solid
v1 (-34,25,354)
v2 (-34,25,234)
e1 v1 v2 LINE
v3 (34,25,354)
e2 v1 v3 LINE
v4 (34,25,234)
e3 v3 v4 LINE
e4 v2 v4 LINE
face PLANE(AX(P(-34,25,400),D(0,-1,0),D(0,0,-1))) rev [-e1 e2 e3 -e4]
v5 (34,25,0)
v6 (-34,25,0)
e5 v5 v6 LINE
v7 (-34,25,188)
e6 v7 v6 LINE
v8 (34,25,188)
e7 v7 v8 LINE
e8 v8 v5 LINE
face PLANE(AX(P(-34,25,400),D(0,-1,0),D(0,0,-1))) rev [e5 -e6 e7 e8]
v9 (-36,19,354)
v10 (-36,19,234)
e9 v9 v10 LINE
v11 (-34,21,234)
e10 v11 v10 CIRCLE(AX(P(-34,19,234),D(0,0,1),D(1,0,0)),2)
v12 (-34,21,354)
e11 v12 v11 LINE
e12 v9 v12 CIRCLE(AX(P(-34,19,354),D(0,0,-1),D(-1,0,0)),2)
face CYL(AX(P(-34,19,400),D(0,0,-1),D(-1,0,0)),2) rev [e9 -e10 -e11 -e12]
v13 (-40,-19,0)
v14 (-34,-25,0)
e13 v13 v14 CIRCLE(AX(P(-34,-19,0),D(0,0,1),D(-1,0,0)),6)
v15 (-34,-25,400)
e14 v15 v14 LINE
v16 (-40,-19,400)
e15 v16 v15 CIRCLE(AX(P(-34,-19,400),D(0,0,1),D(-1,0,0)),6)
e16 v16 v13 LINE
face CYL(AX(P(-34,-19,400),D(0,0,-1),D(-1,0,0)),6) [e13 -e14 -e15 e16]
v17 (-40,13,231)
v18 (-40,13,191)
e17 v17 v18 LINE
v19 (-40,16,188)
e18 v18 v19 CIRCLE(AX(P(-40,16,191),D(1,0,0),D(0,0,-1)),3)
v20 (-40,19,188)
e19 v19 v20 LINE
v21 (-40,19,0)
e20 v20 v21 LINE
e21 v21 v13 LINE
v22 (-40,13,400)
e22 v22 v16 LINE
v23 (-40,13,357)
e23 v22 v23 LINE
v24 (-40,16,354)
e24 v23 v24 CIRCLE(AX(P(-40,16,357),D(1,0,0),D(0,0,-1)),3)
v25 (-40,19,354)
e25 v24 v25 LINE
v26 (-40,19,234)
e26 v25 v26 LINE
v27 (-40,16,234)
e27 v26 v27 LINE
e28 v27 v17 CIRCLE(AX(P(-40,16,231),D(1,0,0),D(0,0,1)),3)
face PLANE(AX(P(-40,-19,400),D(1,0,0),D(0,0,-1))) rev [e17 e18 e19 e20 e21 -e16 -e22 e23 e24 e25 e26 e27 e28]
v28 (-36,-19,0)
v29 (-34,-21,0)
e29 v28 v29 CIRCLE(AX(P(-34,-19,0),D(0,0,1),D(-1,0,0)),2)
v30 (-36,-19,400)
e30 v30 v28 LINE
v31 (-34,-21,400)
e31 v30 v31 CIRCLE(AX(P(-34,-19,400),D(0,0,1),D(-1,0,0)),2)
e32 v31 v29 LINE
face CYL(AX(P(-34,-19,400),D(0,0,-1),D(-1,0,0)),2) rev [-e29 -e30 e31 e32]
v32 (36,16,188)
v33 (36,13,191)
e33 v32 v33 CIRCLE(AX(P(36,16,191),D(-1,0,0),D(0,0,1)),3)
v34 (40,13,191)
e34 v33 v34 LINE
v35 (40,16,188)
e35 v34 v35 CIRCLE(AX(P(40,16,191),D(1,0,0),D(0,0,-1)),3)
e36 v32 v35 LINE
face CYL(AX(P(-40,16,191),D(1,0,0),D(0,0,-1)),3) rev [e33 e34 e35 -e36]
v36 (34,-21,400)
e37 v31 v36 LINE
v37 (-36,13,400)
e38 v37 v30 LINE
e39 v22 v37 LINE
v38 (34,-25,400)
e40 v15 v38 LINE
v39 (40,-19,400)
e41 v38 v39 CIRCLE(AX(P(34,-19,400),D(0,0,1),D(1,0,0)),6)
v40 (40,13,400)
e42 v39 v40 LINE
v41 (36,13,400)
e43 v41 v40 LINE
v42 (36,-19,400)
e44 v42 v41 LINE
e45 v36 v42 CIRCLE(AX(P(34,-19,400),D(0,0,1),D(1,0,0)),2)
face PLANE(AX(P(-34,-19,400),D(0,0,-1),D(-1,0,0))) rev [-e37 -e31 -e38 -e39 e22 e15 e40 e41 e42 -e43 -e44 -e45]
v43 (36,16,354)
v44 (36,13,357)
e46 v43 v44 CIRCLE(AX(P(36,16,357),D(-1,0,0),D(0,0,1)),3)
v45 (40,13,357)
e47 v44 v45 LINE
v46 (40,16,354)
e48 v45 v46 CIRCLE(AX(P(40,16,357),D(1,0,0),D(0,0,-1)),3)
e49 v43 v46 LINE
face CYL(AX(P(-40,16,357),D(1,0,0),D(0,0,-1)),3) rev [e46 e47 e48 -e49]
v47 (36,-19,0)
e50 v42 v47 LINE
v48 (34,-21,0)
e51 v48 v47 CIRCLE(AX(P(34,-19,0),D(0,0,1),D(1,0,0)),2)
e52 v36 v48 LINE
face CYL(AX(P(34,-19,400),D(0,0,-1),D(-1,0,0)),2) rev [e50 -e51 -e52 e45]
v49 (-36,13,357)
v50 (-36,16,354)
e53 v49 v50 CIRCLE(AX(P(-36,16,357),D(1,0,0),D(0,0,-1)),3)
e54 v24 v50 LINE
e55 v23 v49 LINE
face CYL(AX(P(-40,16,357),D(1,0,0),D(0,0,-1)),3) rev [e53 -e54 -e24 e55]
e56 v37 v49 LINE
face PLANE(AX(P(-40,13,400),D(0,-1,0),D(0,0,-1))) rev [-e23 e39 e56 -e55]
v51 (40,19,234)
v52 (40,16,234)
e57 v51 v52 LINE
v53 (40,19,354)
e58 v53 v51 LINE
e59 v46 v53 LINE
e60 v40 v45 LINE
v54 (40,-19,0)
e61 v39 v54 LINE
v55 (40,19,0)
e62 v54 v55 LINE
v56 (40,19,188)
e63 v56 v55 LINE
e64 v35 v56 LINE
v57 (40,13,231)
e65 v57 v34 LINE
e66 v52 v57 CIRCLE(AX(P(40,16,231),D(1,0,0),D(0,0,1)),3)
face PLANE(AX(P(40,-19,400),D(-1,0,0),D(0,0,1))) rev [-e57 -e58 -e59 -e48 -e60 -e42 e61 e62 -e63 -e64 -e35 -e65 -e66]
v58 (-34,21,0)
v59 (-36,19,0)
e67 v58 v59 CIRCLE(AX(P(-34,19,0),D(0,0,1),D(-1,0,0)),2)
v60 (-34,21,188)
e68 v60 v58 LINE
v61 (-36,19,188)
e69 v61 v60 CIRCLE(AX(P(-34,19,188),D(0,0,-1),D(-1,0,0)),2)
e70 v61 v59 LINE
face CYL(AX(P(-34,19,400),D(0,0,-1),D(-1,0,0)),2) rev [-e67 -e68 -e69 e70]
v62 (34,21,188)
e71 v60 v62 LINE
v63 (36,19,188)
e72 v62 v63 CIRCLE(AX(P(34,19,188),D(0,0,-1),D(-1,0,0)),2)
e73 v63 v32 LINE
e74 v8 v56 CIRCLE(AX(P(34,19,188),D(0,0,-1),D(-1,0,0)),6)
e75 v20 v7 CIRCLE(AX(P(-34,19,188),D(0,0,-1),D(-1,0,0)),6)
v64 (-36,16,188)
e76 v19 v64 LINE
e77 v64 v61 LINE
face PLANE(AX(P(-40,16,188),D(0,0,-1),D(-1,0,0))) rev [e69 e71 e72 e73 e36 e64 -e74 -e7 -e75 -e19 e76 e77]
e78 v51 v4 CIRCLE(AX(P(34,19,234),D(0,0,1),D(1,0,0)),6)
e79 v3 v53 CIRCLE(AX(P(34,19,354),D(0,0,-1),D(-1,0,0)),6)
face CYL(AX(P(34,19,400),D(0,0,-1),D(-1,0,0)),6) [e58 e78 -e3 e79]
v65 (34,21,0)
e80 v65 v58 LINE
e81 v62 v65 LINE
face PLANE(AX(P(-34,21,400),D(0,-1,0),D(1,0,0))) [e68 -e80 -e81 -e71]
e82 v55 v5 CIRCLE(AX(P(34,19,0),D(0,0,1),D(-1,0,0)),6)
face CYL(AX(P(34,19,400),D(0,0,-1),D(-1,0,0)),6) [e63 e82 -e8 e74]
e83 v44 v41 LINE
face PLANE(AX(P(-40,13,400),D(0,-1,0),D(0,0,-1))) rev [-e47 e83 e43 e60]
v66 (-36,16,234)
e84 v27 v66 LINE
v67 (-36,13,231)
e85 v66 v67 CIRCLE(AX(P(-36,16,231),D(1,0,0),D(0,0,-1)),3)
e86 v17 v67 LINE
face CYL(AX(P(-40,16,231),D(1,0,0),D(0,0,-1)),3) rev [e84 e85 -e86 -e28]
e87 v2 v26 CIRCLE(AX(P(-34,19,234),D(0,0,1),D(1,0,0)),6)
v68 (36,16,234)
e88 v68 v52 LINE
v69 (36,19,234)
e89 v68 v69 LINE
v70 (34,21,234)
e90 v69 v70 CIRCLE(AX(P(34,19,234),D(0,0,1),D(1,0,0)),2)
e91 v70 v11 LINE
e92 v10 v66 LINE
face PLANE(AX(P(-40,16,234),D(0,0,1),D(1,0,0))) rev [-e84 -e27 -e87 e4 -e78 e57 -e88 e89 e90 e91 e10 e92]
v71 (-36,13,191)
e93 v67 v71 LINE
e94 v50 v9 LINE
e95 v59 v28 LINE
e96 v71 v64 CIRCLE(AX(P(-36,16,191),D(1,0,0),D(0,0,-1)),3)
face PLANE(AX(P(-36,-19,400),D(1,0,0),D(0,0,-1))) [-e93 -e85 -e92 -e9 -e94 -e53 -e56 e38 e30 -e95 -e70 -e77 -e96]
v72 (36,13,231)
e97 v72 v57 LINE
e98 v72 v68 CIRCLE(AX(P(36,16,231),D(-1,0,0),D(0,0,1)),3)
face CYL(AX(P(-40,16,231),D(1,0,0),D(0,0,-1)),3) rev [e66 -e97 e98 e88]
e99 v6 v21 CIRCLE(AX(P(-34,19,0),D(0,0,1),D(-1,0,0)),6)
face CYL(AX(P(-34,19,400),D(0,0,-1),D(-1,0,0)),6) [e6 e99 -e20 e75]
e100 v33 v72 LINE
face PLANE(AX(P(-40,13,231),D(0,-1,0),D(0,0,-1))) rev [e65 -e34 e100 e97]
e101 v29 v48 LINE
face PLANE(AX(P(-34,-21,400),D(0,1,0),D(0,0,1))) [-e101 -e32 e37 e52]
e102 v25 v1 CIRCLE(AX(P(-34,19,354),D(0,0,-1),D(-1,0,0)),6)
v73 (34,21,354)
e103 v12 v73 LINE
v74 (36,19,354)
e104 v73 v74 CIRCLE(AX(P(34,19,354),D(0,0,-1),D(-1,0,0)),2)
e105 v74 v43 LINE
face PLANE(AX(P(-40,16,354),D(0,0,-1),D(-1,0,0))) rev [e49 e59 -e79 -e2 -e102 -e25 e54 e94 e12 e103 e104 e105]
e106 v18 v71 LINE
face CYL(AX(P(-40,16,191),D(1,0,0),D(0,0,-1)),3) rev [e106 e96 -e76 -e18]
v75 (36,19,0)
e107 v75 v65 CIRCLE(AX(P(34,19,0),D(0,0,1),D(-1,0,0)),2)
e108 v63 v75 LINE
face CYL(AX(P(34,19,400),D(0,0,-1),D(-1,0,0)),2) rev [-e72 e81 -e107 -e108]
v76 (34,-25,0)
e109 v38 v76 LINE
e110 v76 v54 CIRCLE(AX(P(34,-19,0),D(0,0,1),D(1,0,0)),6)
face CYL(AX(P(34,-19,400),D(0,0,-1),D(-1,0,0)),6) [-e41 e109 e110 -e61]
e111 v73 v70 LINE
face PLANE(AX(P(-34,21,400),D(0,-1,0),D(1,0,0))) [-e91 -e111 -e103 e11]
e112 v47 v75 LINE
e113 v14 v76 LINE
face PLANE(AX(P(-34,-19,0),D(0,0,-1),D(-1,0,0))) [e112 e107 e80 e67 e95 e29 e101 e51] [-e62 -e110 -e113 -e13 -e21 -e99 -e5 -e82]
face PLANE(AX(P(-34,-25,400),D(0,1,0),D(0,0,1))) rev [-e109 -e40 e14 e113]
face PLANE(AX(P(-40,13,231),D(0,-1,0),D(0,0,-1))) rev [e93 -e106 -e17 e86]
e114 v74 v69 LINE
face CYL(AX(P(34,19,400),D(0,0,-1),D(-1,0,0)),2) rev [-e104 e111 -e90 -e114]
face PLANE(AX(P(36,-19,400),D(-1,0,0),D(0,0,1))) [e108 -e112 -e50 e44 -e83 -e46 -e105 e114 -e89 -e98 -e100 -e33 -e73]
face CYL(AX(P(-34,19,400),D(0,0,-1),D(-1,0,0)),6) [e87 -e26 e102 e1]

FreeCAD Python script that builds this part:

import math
import FreeCAD as App
import Part
import Sketcher

V = App.Vector

doc = App.newDocument("Part")
body = doc.addObject("PartDesign::Body", "Body")

# Sketch on XY plane
sketch1 = body.newObject("Sketcher::SketchObject", "Sketch")
sketch1.AttachmentSupport = (doc.getObject("XY_Plane"), [""])
sketch1.MapMode = "FlatFace"
sketch1.addGeometry([
    Part.LineSegment(V(-34, -25, 0), V(34, -25, 0)),  # 0
    Part.ArcOfCircle(Part.Circle(V(34, -19, 0), V(0, 0, 1), 6), math.radians(-90), math.radians(0)),  # 1
    Part.LineSegment(V(40, -19, 0), V(40, 19, 0)),  # 2
    Part.ArcOfCircle(Part.Circle(V(34, 19, 0), V(0, 0, 1), 6), math.radians(0), math.radians(90)),  # 3
    Part.LineSegment(V(34, 25, 0), V(-34, 25, 0)),  # 4
    Part.ArcOfCircle(Part.Circle(V(-34, 19, 0), V(0, 0, 1), 6), math.radians(90), math.radians(180)),  # 5
    Part.LineSegment(V(-40, 19, 0), V(-40, -19, 0)),  # 6
    Part.ArcOfCircle(Part.Circle(V(-34, -19, 0), V(0, 0, 1), 6), math.radians(180), math.radians(270)),  # 7
    Part.LineSegment(V(34, -21, 0), V(-34, -21, 0)),  # 8
    Part.ArcOfCircle(Part.Circle(V(-34, -19, 0), V(0, 0, 1), 2), math.radians(-180), math.radians(-90)),  # 9
    Part.LineSegment(V(-36, -19, 0), V(-36, 19, 0)),  # 10
    Part.ArcOfCircle(Part.Circle(V(-34, 19, 0), V(0, 0, 1), 2), math.radians(90), math.radians(180)),  # 11
    Part.LineSegment(V(-34, 21, 0), V(34, 21, 0)),  # 12
    Part.ArcOfCircle(Part.Circle(V(34, 19, 0), V(0, 0, 1), 2), math.radians(0), math.radians(90)),  # 13
    Part.LineSegment(V(36, 19, 0), V(36, -19, 0)),  # 14
    Part.ArcOfCircle(Part.Circle(V(34, -19, 0), V(0, 0, 1), 2), math.radians(-90), math.radians(0)),  # 15
], False)
sketch1.addConstraint([
    Sketcher.Constraint("Tangent", 0, 2, 1, 1),
    Sketcher.Constraint("Tangent", 1, 2, 2, 1),
    Sketcher.Constraint("Tangent", 2, 2, 3, 1),
    Sketcher.Constraint("Tangent", 3, 2, 4, 1),
    Sketcher.Constraint("Tangent", 4, 2, 5, 1),
    Sketcher.Constraint("Tangent", 5, 2, 6, 1),
    Sketcher.Constraint("Tangent", 6, 2, 7, 1),
    Sketcher.Constraint("Tangent", 7, 2, 0, 1),
    Sketcher.Constraint("Tangent", 8, 2, 9, 2),
    Sketcher.Constraint("Tangent", 9, 1, 10, 1),
    Sketcher.Constraint("Tangent", 10, 2, 11, 2),
    Sketcher.Constraint("Tangent", 11, 1, 12, 1),
    Sketcher.Constraint("Tangent", 12, 2, 13, 2),
    Sketcher.Constraint("Tangent", 13, 1, 14, 1),
    Sketcher.Constraint("Tangent", 14, 2, 15, 2),
    Sketcher.Constraint("Tangent", 15, 1, 8, 1),
    Sketcher.Constraint("Horizontal", 0),
    Sketcher.Constraint("Vertical", 2),
    Sketcher.Constraint("Horizontal", 4),
    Sketcher.Constraint("Vertical", 6),
    Sketcher.Constraint("Horizontal", 8),
    Sketcher.Constraint("Vertical", 10),
    Sketcher.Constraint("Horizontal", 12),
    Sketcher.Constraint("Vertical", 14),
    Sketcher.Constraint("Coincident", 9, 3, 7, 3),
    Sketcher.Constraint("Coincident", 11, 3, 5, 3),
    Sketcher.Constraint("Coincident", 13, 3, 3, 3),
    Sketcher.Constraint("Equal", 1, 3),
    Sketcher.Constraint("Equal", 3, 5),
    Sketcher.Constraint("Equal", 5, 7),
    Sketcher.Constraint("Equal", 13, 15),
    Sketcher.Constraint("Symmetric", 1, 3, 5, 3, -1, 1),
    Sketcher.Constraint("Radius", 1, 6.0),
    Sketcher.Constraint("Radius", 9, 2.0),
    Sketcher.Constraint("DistanceX", 0, 1, 0, 2, 68.0),
    Sketcher.Constraint("DistanceY", 2, 1, 2, 2, 38.0),
])
pad1 = body.newObject("PartDesign::Pad", "Pad")
pad1.Profile = sketch1
pad1.Length = 400

# Sketch on YZ plane
sketch2 = body.newObject("Sketcher::SketchObject", "Sketch001")
sketch2.AttachmentSupport = (doc.getObject("YZ_Plane"), [""])
sketch2.MapMode = "FlatFace"
sketch2.AttachmentOffset = App.Placement(V(0, 0, 40), App.Rotation())
sketch2.addGeometry([
    Part.LineSegment(V(13, 400, 0), V(13, 357, 0)),  # 0
    Part.ArcOfCircle(Part.Circle(V(16, 357, 0), V(0, 0, 1), 3), math.radians(180), math.radians(270)),  # 1
    Part.LineSegment(V(16, 354, 0), V(25, 354, 0)),  # 2
    Part.LineSegment(V(25, 354, 0), V(25, 400, 0)),  # 3
    Part.LineSegment(V(25, 400, 0), V(13, 400, 0)),  # 4
    Part.LineSegment(V(13, 231, 0), V(13, 191, 0)),  # 5
    Part.ArcOfCircle(Part.Circle(V(16, 191, 0), V(0, 0, 1), 3), math.radians(180), math.radians(270)),  # 6
    Part.LineSegment(V(16, 188, 0), V(25, 188, 0)),  # 7
    Part.LineSegment(V(25, 188, 0), V(25, 234, 0)),  # 8
    Part.LineSegment(V(25, 234, 0), V(16, 234, 0)),  # 9
    Part.ArcOfCircle(Part.Circle(V(16, 231, 0), V(0, 0, 1), 3), math.radians(90), math.radians(180)),  # 10
], False)
sketch2.addConstraint([
    Sketcher.Constraint("Tangent", 0, 2, 1, 1),
    Sketcher.Constraint("Tangent", 1, 2, 2, 1),
    Sketcher.Constraint("Coincident", 2, 2, 3, 1),
    Sketcher.Constraint("Coincident", 3, 2, 4, 1),
    Sketcher.Constraint("Coincident", 4, 2, 0, 1),
    Sketcher.Constraint("Tangent", 5, 2, 6, 1),
    Sketcher.Constraint("Tangent", 6, 2, 7, 1),
    Sketcher.Constraint("Coincident", 7, 2, 8, 1),
    Sketcher.Constraint("Coincident", 8, 2, 9, 1),
    Sketcher.Constraint("Tangent", 9, 2, 10, 1),
    Sketcher.Constraint("Tangent", 10, 2, 5, 1),
    Sketcher.Constraint("Vertical", 0),
    Sketcher.Constraint("Horizontal", 2),
    Sketcher.Constraint("Vertical", 3),
    Sketcher.Constraint("Horizontal", 4),
    Sketcher.Constraint("Vertical", 5),
    Sketcher.Constraint("Horizontal", 7),
    Sketcher.Constraint("Vertical", 8),
    Sketcher.Constraint("Horizontal", 9),
    Sketcher.Constraint("Equal", 1, 6),
    Sketcher.Constraint("Equal", 6, 10),
    Sketcher.Constraint("Vertical", 1, 3, 6, 3),
    Sketcher.Constraint("Vertical", 3, 2, 7, 2),
    Sketcher.Constraint("Equal", 3, 8),
    Sketcher.Constraint("Radius", 1, 3.0),
    Sketcher.Constraint("DistanceX", 2, 1, 2, 2, 9.0),
    Sketcher.Constraint("DistanceY", 0, 2, 0, 1, 43.0),
    Sketcher.Constraint("DistanceX", -1, 1, 1, 3, 16.0),
    Sketcher.Constraint("DistanceY", -1, 1, 1, 3, 357.0),
    Sketcher.Constraint("DistanceY", -1, 1, 6, 3, 191.0),
])
pocket1 = body.newObject("PartDesign::Pocket", "Pocket")
pocket1.Profile = sketch2
pocket1.Type = "ThroughAll"

doc.recompute()
